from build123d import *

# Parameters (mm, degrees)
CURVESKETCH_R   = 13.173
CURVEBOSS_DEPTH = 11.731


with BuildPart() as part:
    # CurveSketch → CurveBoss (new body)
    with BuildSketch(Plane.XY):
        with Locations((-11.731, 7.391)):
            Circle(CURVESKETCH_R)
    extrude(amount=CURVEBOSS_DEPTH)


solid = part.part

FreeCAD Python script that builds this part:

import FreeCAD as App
import Part
import Sketcher

V = App.Vector
Q = App.Units.Quantity

doc = App.newDocument("Part")
body = doc.addObject("PartDesign::Body", "Body")

sketch1 = body.newObject("Sketcher::SketchObject", "Sketch")
sketch1.AttachmentSupport = (doc.getObject("XY_Plane"), [""])
sketch1.MapMode = "FlatFace"
sketch1.addGeometry(Part.Circle(V(-12, 7, 0), V(0, 0, 1), 13), False)
sketch1.addConstraint([
    Sketcher.Constraint("Diameter", 0, Q("26.346 mm")),
    Sketcher.Constraint("DistanceX", 0, 3, -1, 1, Q("11.731 mm")),
    Sketcher.Constraint("DistanceY", -1, 1, 0, 3, Q("7.391 mm")),
])
pad1 = body.newObject("PartDesign::Pad", "Pad")
pad1.Profile = sketch1
pad1.Length = 11.731

doc.recompute()
